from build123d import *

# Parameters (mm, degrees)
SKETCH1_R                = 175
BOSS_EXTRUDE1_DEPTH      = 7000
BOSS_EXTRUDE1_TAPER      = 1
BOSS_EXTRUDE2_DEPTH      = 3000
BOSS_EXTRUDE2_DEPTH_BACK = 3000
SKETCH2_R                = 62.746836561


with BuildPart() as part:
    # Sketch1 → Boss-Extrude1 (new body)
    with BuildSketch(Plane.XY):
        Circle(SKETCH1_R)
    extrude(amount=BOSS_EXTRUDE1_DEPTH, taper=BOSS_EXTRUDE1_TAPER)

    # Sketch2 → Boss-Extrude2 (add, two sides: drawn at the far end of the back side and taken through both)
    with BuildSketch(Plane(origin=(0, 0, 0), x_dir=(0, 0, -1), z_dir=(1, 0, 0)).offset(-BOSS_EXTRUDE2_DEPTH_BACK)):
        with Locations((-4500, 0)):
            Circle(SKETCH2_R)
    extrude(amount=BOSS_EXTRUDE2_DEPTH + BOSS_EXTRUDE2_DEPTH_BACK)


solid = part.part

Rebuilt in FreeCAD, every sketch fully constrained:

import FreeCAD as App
import Part
import Sketcher
from FreeCAD import Vector
Q = App.Units.Quantity

doc = App.newDocument("Part")
body = doc.addObject("PartDesign::Body", "Body")

# Sketch on XY plane
sketch1 = doc.addObject("Sketcher::SketchObject", "Sketch")
body.addObject(sketch1)
sketch1.AttachmentSupport = (doc.XY_Plane, [""])
sketch1.MapMode = "FlatFace"
sketch1.addGeometry(Part.Circle(Vector(0, 0, 0), Vector(0, 0, 1), 175), False)
sketch1.addConstraint(Sketcher.Constraint("Coincident", 0, 3, -1, 1))
sketch1.addConstraint(Sketcher.Constraint("Diameter", 0, Q("350 mm")))
pad1 = doc.addObject("PartDesign::Pad", "Pad")
body.addObject(pad1)
pad1.Profile = sketch1
pad1.Length = 7000
pad1.TaperAngle = -1

# Sketch on YZ plane
sketch2 = doc.addObject("Sketcher::SketchObject", "Sketch001")
body.addObject(sketch2)
sketch2.AttachmentSupport = (doc.YZ_Plane, [""])
sketch2.MapMode = "FlatFace"
sketch2.addGeometry(Part.Circle(Vector(0, 4500, 0), Vector(0, 0, 1), 63), False)
sketch2.addConstraint(Sketcher.Constraint("PointOnObject", 0, 3, -2))
sketch2.addConstraint(Sketcher.Constraint("DistanceY", -1, 1, 0, 3, Q("4500 mm")))
sketch2.addConstraint(Sketcher.Constraint("Diameter", 0, Q("125.493673 mm")))
pad2 = doc.addObject("PartDesign::Pad", "Pad001")
body.addObject(pad2)
pad2.Profile = sketch2
pad2.Type = "TwoLengths"
pad2.Length = 3000
pad2.Length2 = 3000

doc.recompute()
